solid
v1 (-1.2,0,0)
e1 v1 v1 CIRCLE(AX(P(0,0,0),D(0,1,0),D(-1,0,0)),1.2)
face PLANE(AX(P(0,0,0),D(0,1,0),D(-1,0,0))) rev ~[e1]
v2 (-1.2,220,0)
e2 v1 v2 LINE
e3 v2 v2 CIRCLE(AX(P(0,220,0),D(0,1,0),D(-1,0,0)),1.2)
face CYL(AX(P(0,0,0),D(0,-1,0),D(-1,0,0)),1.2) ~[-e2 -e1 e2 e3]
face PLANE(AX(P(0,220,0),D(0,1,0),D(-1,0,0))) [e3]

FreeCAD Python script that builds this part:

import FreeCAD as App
import Part
import Sketcher

doc = App.newDocument("Part")
params = doc.addObject("Spreadsheet::Sheet", "Params")
for row, (alias, value) in enumerate([
    ("sketch1_diameter", "2.4 mm"),
    ("pad1_length", "220 mm"),
], start=1):
    params.set(f"A{row}", alias)
    params.set(f"B{row}", "=" + value)
    params.setAlias(f"B{row}", alias)

body = doc.addObject("PartDesign::Body", "Body")

# Sketch on XZ plane
sketch1 = body.newObject("Sketcher::SketchObject", "Sketch")
sketch1.AttachmentSupport = (doc.getObject("XZ_Plane"), [""])
sketch1.MapMode = "FlatFace"
sketch1.addGeometry(Part.Circle(App.Vector(0, 0, 0), App.Vector(0, 0, 1), 1.2), False)
sketch1.addConstraint([
    Sketcher.Constraint("Coincident", 0, 3, -1, 1),
    Sketcher.Constraint("Diameter", 0, 2.4),
])
sketch1.setExpression("Constraints[1]", "Params.sketch1_diameter")
pad1 = body.newObject("PartDesign::Pad", "Pad")
pad1.Profile = sketch1
pad1.setExpression("Length", "Params.pad1_length")
pad1.Reversed = True

doc.recompute()
